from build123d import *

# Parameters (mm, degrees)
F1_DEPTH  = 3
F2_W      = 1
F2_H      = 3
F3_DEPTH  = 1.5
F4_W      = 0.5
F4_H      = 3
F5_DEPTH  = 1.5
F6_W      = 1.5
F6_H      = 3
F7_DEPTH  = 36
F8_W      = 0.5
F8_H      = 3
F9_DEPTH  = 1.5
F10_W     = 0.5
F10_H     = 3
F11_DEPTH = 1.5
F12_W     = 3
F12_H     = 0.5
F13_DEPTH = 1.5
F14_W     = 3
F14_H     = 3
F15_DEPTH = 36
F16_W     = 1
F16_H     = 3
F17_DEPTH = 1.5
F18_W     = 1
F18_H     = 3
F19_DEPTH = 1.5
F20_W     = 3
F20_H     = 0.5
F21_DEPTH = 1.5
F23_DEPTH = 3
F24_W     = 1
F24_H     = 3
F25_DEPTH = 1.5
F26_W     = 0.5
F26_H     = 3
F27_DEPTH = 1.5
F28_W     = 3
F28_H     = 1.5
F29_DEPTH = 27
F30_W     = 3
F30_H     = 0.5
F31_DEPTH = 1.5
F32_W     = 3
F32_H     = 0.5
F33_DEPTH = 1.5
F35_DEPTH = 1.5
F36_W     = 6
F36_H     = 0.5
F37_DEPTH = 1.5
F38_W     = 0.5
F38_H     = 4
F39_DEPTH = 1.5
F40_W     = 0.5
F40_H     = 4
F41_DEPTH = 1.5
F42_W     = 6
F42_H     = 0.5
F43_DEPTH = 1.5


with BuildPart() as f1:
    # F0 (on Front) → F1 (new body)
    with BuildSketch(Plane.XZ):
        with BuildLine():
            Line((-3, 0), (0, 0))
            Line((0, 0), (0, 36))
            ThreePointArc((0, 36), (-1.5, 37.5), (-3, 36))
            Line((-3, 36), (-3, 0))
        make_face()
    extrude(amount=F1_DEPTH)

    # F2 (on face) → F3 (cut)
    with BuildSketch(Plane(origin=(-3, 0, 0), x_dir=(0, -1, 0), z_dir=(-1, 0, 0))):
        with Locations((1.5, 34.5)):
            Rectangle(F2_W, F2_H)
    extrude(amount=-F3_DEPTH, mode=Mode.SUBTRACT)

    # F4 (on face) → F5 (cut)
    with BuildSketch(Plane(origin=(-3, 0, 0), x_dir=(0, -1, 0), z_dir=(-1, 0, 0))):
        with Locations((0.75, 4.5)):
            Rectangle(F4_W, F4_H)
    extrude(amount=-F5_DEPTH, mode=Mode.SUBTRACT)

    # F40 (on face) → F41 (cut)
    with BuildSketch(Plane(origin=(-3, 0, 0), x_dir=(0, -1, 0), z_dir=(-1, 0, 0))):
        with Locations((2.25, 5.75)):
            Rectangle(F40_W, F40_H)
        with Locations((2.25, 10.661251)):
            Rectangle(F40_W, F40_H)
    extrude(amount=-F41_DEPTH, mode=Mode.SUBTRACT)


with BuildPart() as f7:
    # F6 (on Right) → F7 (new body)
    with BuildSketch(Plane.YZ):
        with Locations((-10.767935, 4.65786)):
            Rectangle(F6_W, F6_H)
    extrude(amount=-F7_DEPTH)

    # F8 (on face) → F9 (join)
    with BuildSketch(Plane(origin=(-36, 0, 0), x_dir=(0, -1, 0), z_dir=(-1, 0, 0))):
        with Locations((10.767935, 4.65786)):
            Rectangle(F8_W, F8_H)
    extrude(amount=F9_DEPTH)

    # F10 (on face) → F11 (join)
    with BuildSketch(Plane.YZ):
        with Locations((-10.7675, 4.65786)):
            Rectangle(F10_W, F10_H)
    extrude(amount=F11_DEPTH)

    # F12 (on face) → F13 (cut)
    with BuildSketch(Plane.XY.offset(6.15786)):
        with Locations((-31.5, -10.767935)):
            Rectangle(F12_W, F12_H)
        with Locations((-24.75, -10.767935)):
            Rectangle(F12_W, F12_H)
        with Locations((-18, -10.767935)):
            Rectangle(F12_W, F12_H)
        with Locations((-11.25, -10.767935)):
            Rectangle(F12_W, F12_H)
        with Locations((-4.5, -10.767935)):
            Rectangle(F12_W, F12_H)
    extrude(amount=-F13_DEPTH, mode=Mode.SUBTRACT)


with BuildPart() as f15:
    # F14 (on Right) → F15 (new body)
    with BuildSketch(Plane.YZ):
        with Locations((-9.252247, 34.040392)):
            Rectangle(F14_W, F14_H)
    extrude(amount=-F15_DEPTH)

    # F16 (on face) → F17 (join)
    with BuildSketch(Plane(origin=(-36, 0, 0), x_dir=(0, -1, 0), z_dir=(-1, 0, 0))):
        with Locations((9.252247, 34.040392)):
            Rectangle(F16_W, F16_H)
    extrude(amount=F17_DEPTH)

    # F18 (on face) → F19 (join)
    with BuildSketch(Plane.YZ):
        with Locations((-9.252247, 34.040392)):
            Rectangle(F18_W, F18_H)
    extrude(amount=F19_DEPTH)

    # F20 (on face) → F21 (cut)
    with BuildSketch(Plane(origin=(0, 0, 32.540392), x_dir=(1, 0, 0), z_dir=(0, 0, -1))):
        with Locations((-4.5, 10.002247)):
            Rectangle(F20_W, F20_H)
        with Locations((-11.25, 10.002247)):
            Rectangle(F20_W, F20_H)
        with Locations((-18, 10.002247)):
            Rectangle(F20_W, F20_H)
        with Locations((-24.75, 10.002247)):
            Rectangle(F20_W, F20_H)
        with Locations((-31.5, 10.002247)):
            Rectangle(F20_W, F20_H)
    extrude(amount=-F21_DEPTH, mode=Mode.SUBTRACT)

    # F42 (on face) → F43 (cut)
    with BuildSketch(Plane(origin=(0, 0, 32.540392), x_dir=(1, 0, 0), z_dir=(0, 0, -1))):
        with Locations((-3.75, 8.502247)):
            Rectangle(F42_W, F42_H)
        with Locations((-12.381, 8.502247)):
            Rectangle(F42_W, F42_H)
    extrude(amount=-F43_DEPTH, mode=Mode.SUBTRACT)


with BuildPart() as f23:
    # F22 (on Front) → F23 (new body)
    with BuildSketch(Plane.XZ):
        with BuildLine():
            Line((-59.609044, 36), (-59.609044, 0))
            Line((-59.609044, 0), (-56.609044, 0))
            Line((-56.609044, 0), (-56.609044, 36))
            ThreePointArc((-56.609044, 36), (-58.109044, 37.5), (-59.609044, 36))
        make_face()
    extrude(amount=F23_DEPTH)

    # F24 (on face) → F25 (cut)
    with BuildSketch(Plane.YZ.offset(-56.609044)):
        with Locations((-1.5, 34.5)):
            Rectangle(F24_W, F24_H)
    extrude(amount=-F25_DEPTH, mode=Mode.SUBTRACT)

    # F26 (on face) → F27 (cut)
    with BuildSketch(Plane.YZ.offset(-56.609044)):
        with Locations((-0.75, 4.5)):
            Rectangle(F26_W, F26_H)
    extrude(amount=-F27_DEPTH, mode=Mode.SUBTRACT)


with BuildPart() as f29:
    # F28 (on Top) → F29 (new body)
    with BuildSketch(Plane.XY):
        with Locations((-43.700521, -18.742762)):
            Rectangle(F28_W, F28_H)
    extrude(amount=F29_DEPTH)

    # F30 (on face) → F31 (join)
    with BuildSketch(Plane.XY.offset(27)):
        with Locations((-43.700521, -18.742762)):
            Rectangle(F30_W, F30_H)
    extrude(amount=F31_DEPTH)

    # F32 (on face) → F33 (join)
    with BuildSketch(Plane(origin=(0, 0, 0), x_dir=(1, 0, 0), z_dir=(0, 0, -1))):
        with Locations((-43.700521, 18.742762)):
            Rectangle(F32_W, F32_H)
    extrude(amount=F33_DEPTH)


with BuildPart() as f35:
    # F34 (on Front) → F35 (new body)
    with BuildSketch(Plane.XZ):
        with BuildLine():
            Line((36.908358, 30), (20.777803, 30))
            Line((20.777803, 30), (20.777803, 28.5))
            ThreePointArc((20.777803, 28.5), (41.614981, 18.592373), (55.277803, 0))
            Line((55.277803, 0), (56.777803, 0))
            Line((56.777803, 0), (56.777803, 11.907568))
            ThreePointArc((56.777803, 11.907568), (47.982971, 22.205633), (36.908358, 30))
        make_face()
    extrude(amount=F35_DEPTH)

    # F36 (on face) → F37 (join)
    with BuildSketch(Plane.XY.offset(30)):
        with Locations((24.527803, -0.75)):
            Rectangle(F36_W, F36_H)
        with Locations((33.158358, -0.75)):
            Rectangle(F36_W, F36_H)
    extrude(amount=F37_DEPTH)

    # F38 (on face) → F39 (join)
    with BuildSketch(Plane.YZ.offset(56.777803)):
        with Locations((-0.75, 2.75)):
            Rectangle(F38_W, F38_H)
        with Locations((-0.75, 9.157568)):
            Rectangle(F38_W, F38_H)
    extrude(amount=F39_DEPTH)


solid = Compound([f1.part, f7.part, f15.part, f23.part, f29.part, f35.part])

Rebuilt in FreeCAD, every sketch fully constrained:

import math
import FreeCAD as App
import Part
import Sketcher
from FreeCAD import Vector


def add_polygon(sketch, points):
    """Adds a closed chain of lines whose ends are joined by coincident constraints."""
    first, n = sketch.GeometryCount, len(points)
    for a, b in zip(points, points[1:] + points[:1]):
        sketch.addGeometry(Part.LineSegment(App.Vector(*a, 0), App.Vector(*b, 0)), False)
    for i in range(n):
        sketch.addConstraint(Sketcher.Constraint("Coincident", first + i, 2, first + (i + 1) % n, 1))

doc = App.newDocument("Part")
body = doc.addObject("PartDesign::Body", "Body")

sketch1 = body.newObject("Sketcher::SketchObject", "Sketch")
sketch1.AttachmentSupport = (doc.getObject("XZ_Plane"), [""])
sketch1.MapMode = "FlatFace"
sketch1.addGeometry([
    Part.LineSegment(Vector(-3, 0, 0), Vector(0, 0, 0)),
    Part.LineSegment(Vector(0, 0, 0), Vector(0, 36, 0)),
    Part.ArcOfCircle(Part.Circle(Vector(-1.5, 36, 0), Vector(0, 0, 1), 1.5), math.radians(0), math.radians(180)),
    Part.LineSegment(Vector(-3, 36, 0), Vector(-3, 0, 0)),
], False)
sketch1.addConstraint([
    Sketcher.Constraint("Coincident", 0, 2, 1, 1),
    Sketcher.Constraint("Tangent", 1, 2, 2, 1),
    Sketcher.Constraint("Tangent", 2, 2, 3, 1),
    Sketcher.Constraint("Coincident", 3, 2, 0, 1),
    Sketcher.Constraint("Horizontal", 0),
    Sketcher.Constraint("Vertical", 1),
    Sketcher.Constraint("Vertical", 3),
    Sketcher.Constraint("Coincident", 0, 2, -1, 1),
    Sketcher.Constraint("Radius", 2, 1.5),
    Sketcher.Constraint("DistanceY", 1, 1, 1, 2, 36.0),
])
pad1 = body.newObject("PartDesign::Pad", "Pad")
pad1.Profile = sketch1
pad1.Length = 3

sketch2 = body.newObject("Sketcher::SketchObject", "Sketch001")
sketch2.AttachmentSupport = (doc.getObject("YZ_Plane"), [""])
sketch2.MapMode = "FlatFace"
sketch2.AttachmentOffset = App.Placement(Vector(0, 0, -3), App.Rotation())
add_polygon(sketch2, [(-1, 36), (-1, 33), (-2, 33), (-2, 36)])
sketch2.addConstraint([
    Sketcher.Constraint("Vertical", 0),
    Sketcher.Constraint("Horizontal", 1),
    Sketcher.Constraint("Vertical", 2),
    Sketcher.Constraint("Horizontal", 3),
    Sketcher.Constraint("DistanceX", 1, 2, 1, 1, 1.0),
    Sketcher.Constraint("DistanceY", 0, 2, 0, 1, 3.0),
    Sketcher.Constraint("DistanceX", 0, 2, -1, 1, 1.0),
    Sketcher.Constraint("DistanceY", -1, 1, 0, 2, 33.0),
])
pocket1 = body.newObject("PartDesign::Pocket", "Pocket")
pocket1.Profile = sketch2
pocket1.Length = 1.5
pocket1.Reversed = True

sketch3 = body.newObject("Sketcher::SketchObject", "Sketch002")
sketch3.AttachmentSupport = (doc.getObject("YZ_Plane"), [""])
sketch3.MapMode = "FlatFace"
sketch3.AttachmentOffset = App.Placement(Vector(0, 0, -3), App.Rotation())
add_polygon(sketch3, [(-0.5, 6), (-0.5, 3), (-1, 3), (-1, 6)])
sketch3.addConstraint([
    Sketcher.Constraint("Vertical", 0),
    Sketcher.Constraint("Horizontal", 1),
    Sketcher.Constraint("Vertical", 2),
    Sketcher.Constraint("Horizontal", 3),
    Sketcher.Constraint("DistanceY", 0, 2, 0, 1, 3.0),
    Sketcher.Constraint("DistanceX", 1, 2, 1, 1, 0.5),
    Sketcher.Constraint("DistanceY", -1, 1, 0, 2, 3.0),
    Sketcher.Constraint("DistanceX", 1, 2, -1, 1, 1.0),
])
pocket2 = body.newObject("PartDesign::Pocket", "Pocket001")
pocket2.Profile = sketch3
pocket2.Length = 1.5
pocket2.Reversed = True

sketch4 = body.newObject("Sketcher::SketchObject", "Sketch003")
sketch4.AttachmentSupport = (doc.getObject("YZ_Plane"), [""])
sketch4.MapMode = "FlatFace"
sketch4.AttachmentOffset = App.Placement(Vector(0, 0, -3), App.Rotation())
add_polygon(sketch4, [(-2, 7.8), (-2, 3.8), (-2.5, 3.8), (-2.5, 7.8)])
add_polygon(sketch4, [(-2, 12.7), (-2, 8.7), (-2.5, 8.7), (-2.5, 12.7)])
sketch4.addConstraint([
    Sketcher.Constraint("Vertical", 0),
    Sketcher.Constraint("Horizontal", 1),
    Sketcher.Constraint("Vertical", 2),
    Sketcher.Constraint("Horizontal", 3),
    Sketcher.Constraint("Vertical", 4),
    Sketcher.Constraint("Horizontal", 5),
    Sketcher.Constraint("Vertical", 6),
    Sketcher.Constraint("Horizontal", 7),
    Sketcher.Constraint("Vertical", 3, 2, 4, 2),
    Sketcher.Constraint("Vertical", 2, 2, 5, 2),
    Sketcher.Constraint("Equal", 2, 4),
    Sketcher.Constraint("DistanceY", 0, 2, 0, 1, 4.0),
    Sketcher.Constraint("DistanceX", 1, 2, 1, 1, 0.5),
    Sketcher.Constraint("DistanceX", 0, 2, -1, 1, 2.0),
    Sketcher.Constraint("DistanceY", -1, 1, 0, 2, 3.75),
    Sketcher.Constraint("DistanceY", -1, 1, 4, 2, 8.661251),
])
pocket3 = body.newObject("PartDesign::Pocket", "Pocket002")
pocket3.Profile = sketch4
pocket3.Length = 1.5
pocket3.Reversed = True
body2 = doc.addObject("PartDesign::Body", "Body001")

sketch5 = body2.newObject("Sketcher::SketchObject", "Sketch004")
sketch5.AttachmentSupport = (doc.getObject("YZ_Plane001"), [""])
sketch5.MapMode = "FlatFace"
add_polygon(sketch5, [(-11.5, 6.2), (-11.5, 3.2), (-10, 3.2), (-10, 6.2)])
sketch5.addConstraint([
    Sketcher.Constraint("Vertical", 0),
    Sketcher.Constraint("Horizontal", 1),
    Sketcher.Constraint("Vertical", 2),
    Sketcher.Constraint("Horizontal", 3),
    Sketcher.Constraint("DistanceY", 0, 2, 0, 1, 3.0),
    Sketcher.Constraint("DistanceX", 1, 1, 1, 2, 1.5),
    Sketcher.Constraint("DistanceY", -1, 1, 0, 2, 3.15786),
    Sketcher.Constraint("DistanceX", 0, 2, -1, 1, 11.517935),
])
pad2 = body2.newObject("PartDesign::Pad", "Pad001")
pad2.Profile = sketch5
pad2.Length = 36
pad2.Reversed = True

sketch6 = body2.newObject("Sketcher::SketchObject", "Sketch005")
sketch6.AttachmentSupport = (doc.getObject("YZ_Plane001"), [""])
sketch6.MapMode = "FlatFace"
sketch6.AttachmentOffset = App.Placement(Vector(0, 0, -36), App.Rotation())
add_polygon(sketch6, [(-10.5, 6.2), (-10.5, 3.2), (-11, 3.2), (-11, 6.2)])
sketch6.addConstraint([
    Sketcher.Constraint("Vertical", 0),
    Sketcher.Constraint("Horizontal", 1),
    Sketcher.Constraint("Vertical", 2),
    Sketcher.Constraint("Horizontal", 3),
    Sketcher.Constraint("DistanceY", 0, 2, 0, 1, 3.0),
    Sketcher.Constraint("DistanceX", 1, 2, 1, 1, 0.5),
    Sketcher.Constraint("DistanceY", -1, 1, 0, 2, 3.15786),
    Sketcher.Constraint("DistanceX", 0, 2, -1, 1, 10.517935),
])
pad3 = body2.newObject("PartDesign::Pad", "Pad002")
pad3.Profile = sketch6
pad3.Length = 1.5
pad3.Reversed = True

sketch7 = body2.newObject("Sketcher::SketchObject", "Sketch006")
sketch7.AttachmentSupport = (doc.getObject("YZ_Plane001"), [""])
sketch7.MapMode = "FlatFace"
add_polygon(sketch7, [(-11, 6.2), (-11, 3.2), (-10.5, 3.2), (-10.5, 6.2)])
sketch7.addConstraint([
    Sketcher.Constraint("Vertical", 0),
    Sketcher.Constraint("Horizontal", 1),
    Sketcher.Constraint("Vertical", 2),
    Sketcher.Constraint("Horizontal", 3),
    Sketcher.Constraint("DistanceY", 0, 2, 0, 1, 3.0),
    Sketcher.Constraint("DistanceX", 1, 1, 1, 2, 0.5),
    Sketcher.Constraint("DistanceX", 0, 2, -1, 1, 11.0175),
    Sketcher.Constraint("DistanceY", -1, 1, 0, 2, 3.15786),
])
pad4 = body2.newObject("PartDesign::Pad", "Pad003")
pad4.Profile = sketch7
pad4.Length = 1.5

sketch8 = body2.newObject("Sketcher::SketchObject", "Sketch007")
sketch8.AttachmentSupport = (doc.getObject("XY_Plane001"), [""])
sketch8.MapMode = "FlatFace"
sketch8.AttachmentOffset = App.Placement(Vector(0, 0, 6.15786), App.Rotation())
add_polygon(sketch8, [(-33, -10.5), (-33, -11), (-30, -11), (-30, -10.5)])
add_polygon(sketch8, [(-26.2, -10.5), (-26.2, -11), (-23.2, -11), (-23.2, -10.5)])
add_polygon(sketch8, [(-19.5, -10.5), (-19.5, -11), (-16.5, -11), (-16.5, -10.5)])
add_polygon(sketch8, [(-12.8, -10.5), (-12.8, -11), (-9.8, -11), (-9.8, -10.5)])
add_polygon(sketch8, [(-6, -10.5), (-6, -11), (-3, -11), (-3, -10.5)])
sketch8.addConstraint([
    Sketcher.Constraint("Vertical", 0),
    Sketcher.Constraint("Horizontal", 1),
    Sketcher.Constraint("Vertical", 2),
    Sketcher.Constraint("Horizontal", 3),
    Sketcher.Constraint("Vertical", 4),
    Sketcher.Constraint("Horizontal", 5),
    Sketcher.Constraint("Vertical", 6),
    Sketcher.Constraint("Horizontal", 7),
    Sketcher.Constraint("Vertical", 8),
    Sketcher.Constraint("Horizontal", 9),
    Sketcher.Constraint("Vertical", 10),
    Sketcher.Constraint("Horizontal", 11),
    Sketcher.Constraint("Vertical", 12),
    Sketcher.Constraint("Horizontal", 13),
    Sketcher.Constraint("Vertical", 14),
    Sketcher.Constraint("Horizontal", 15),
    Sketcher.Constraint("Vertical", 16),
    Sketcher.Constraint("Horizontal", 17),
    Sketcher.Constraint("Vertical", 18),
    Sketcher.Constraint("Horizontal", 19),
    Sketcher.Constraint("Horizontal", 1, 2, 4, 2),
    Sketcher.Constraint("Horizontal", 3, 2, 6, 2),
    Sketcher.Constraint("Horizontal", 5, 2, 8, 2),
    Sketcher.Constraint("Horizontal", 7, 2, 10, 2),
    Sketcher.Constraint("Horizontal", 9, 2, 12, 2),
    Sketcher.Constraint("Horizontal", 11, 2, 14, 2),
    Sketcher.Constraint("Horizontal", 13, 2, 16, 2),
    Sketcher.Constraint("Horizontal", 15, 2, 18, 2),
    Sketcher.Constraint("Equal", 3, 5),
    Sketcher.Constraint("Equal", 7, 9),
    Sketcher.Constraint("Equal", 11, 13),
    Sketcher.Constraint("Equal", 15, 17),
    Sketcher.Constraint("DistanceX", 1, 1, 1, 2, 3.0),
    Sketcher.Constraint("DistanceY", 0, 2, 0, 1, 0.5),
    Sketcher.Constraint("DistanceX", 0, 2, -1, 1, 33.0),
    Sketcher.Constraint("DistanceX", 16, 2, -1, 1, 6.0),
    Sketcher.Constraint("DistanceX", 8, 2, -1, 1, 19.5),
    Sketcher.Constraint("DistanceX", 5, 2, 12, 2, 10.5),
    Sketcher.Constraint("DistanceX", 4, 2, -1, 1, 26.25),
    Sketcher.Constraint("DistanceY", 0, 2, -1, 1, 11.017935),
])
pocket4 = body2.newObject("PartDesign::Pocket", "Pocket003")
pocket4.Profile = sketch8
pocket4.Length = 1.5
body3 = doc.addObject("PartDesign::Body", "Body002")

sketch9 = body3.newObject("Sketcher::SketchObject", "Sketch008")
sketch9.AttachmentSupport = (doc.getObject("YZ_Plane002"), [""])
sketch9.MapMode = "FlatFace"
add_polygon(sketch9, [(-10.8, 35.5), (-10.8, 32.5), (-7.8, 32.5), (-7.8, 35.5)])
sketch9.addConstraint([
    Sketcher.Constraint("Vertical", 0),
    Sketcher.Constraint("Horizontal", 1),
    Sketcher.Constraint("Vertical", 2),
    Sketcher.Constraint("Horizontal", 3),
    Sketcher.Constraint("Equal", 3, 0),
    Sketcher.Constraint("DistanceX", 1, 1, 1, 2, 3.0),
    Sketcher.Constraint("DistanceY", -1, 1, 0, 2, 32.540392),
    Sketcher.Constraint("DistanceX", 0, 2, -1, 1, 10.752247),
])
pad5 = body3.newObject("PartDesign::Pad", "Pad004")
pad5.Profile = sketch9
pad5.Length = 36
pad5.Reversed = True

sketch10 = body3.newObject("Sketcher::SketchObject", "Sketch009")
sketch10.AttachmentSupport = (doc.getObject("YZ_Plane002"), [""])
sketch10.MapMode = "FlatFace"
sketch10.AttachmentOffset = App.Placement(Vector(0, 0, -36), App.Rotation())
add_polygon(sketch10, [(-8.8, 35.5), (-8.8, 32.5), (-9.8, 32.5), (-9.8, 35.5)])
sketch10.addConstraint([
    Sketcher.Constraint("Vertical", 0),
    Sketcher.Constraint("Horizontal", 1),
    Sketcher.Constraint("Vertical", 2),
    Sketcher.Constraint("Horizontal", 3),
    Sketcher.Constraint("DistanceX", 1, 2, 1, 1, 1.0),
    Sketcher.Constraint("DistanceY", 0, 2, 0, 1, 3.0),
    Sketcher.Constraint("DistanceY", -1, 1, 0, 2, 32.540392),
    Sketcher.Constraint("DistanceX", 0, 2, -1, 1, 8.752247),
])
pad6 = body3.newObject("PartDesign::Pad", "Pad005")
pad6.Profile = sketch10
pad6.Length = 1.5
pad6.Reversed = True

sketch11 = body3.newObject("Sketcher::SketchObject", "Sketch010")
sketch11.AttachmentSupport = (doc.getObject("YZ_Plane002"), [""])
sketch11.MapMode = "FlatFace"
add_polygon(sketch11, [(-9.8, 35.5), (-9.8, 32.5), (-8.8, 32.5), (-8.8, 35.5)])
sketch11.addConstraint([
    Sketcher.Constraint("Vertical", 0),
    Sketcher.Constraint("Horizontal", 1),
    Sketcher.Constraint("Vertical", 2),
    Sketcher.Constraint("Horizontal", 3),
    Sketcher.Constraint("DistanceX", 1, 1, 1, 2, 1.0),
    Sketcher.Constraint("DistanceY", 0, 2, 0, 1, 3.0),
    Sketcher.Constraint("DistanceY", -1, 1, 0, 2, 32.540392),
    Sketcher.Constraint("DistanceX", 0, 2, -1, 1, 9.752247),
])
pad7 = body3.newObject("PartDesign::Pad", "Pad006")
pad7.Profile = sketch11
pad7.Length = 1.5

sketch12 = body3.newObject("Sketcher::SketchObject", "Sketch011")
sketch12.AttachmentSupport = (doc.getObject("XY_Plane002"), [""])
sketch12.MapMode = "FlatFace"
sketch12.AttachmentOffset = App.Placement(Vector(0, 0, 32.540392), App.Rotation())
add_polygon(sketch12, [(-6, -10.3), (-6, -9.8), (-3, -9.8), (-3, -10.3)])
add_polygon(sketch12, [(-12.8, -10.3), (-12.8, -9.8), (-9.8, -9.8), (-9.8, -10.3)])
add_polygon(sketch12, [(-19.5, -10.3), (-19.5, -9.8), (-16.5, -9.8), (-16.5, -10.3)])
add_polygon(sketch12, [(-26.2, -10.3), (-26.2, -9.8), (-23.2, -9.8), (-23.2, -10.3)])
add_polygon(sketch12, [(-33, -10.3), (-33, -9.8), (-30, -9.8), (-30, -10.3)])
sketch12.addConstraint([
    Sketcher.Constraint("Vertical", 0),
    Sketcher.Constraint("Horizontal", 1),
    Sketcher.Constraint("Vertical", 2),
    Sketcher.Constraint("Horizontal", 3),
    Sketcher.Constraint("Vertical", 4),
    Sketcher.Constraint("Horizontal", 5),
    Sketcher.Constraint("Vertical", 6),
    Sketcher.Constraint("Horizontal", 7),
    Sketcher.Constraint("Vertical", 8),
    Sketcher.Constraint("Horizontal", 9),
    Sketcher.Constraint("Vertical", 10),
    Sketcher.Constraint("Horizontal", 11),
    Sketcher.Constraint("Vertical", 12),
    Sketcher.Constraint("Horizontal", 13),
    Sketcher.Constraint("Vertical", 14),
    Sketcher.Constraint("Horizontal", 15),
    Sketcher.Constraint("Vertical", 16),
    Sketcher.Constraint("Horizontal", 17),
    Sketcher.Constraint("Vertical", 18),
    Sketcher.Constraint("Horizontal", 19),
    Sketcher.Constraint("Horizontal", 1, 2, 4, 2),
    Sketcher.Constraint("Horizontal", 3, 2, 6, 2),
    Sketcher.Constraint("Horizontal", 5, 2, 8, 2),
    Sketcher.Constraint("Horizontal", 7, 2, 10, 2),
    Sketcher.Constraint("Horizontal", 9, 2, 12, 2),
    Sketcher.Constraint("Horizontal", 11, 2, 14, 2),
    Sketcher.Constraint("Horizontal", 13, 2, 16, 2),
    Sketcher.Constraint("Horizontal", 15, 2, 18, 2),
    Sketcher.Constraint("Equal", 3, 5),
    Sketcher.Constraint("Equal", 7, 9),
    Sketcher.Constraint("Equal", 11, 13),
    Sketcher.Constraint("Equal", 15, 17),
    Sketcher.Constraint("DistanceX", 1, 1, 1, 2, 3.0),
    Sketcher.Constraint("DistanceY", 0, 1, 0, 2, 0.5),
    Sketcher.Constraint("DistanceX", 0, 2, -1, 1, 6.0),
    Sketcher.Constraint("DistanceX", 16, 2, -1, 1, 33.0),
    Sketcher.Constraint("DistanceX", 8, 2, -1, 1, 19.5),
    Sketcher.Constraint("DistanceX", 12, 2, 4, 2, 13.5),
    Sketcher.Constraint("DistanceX", 4, 2, -1, 1, 12.75),
    Sketcher.Constraint("DistanceY", 0, 2, -1, 1, 9.752247),
])
pocket5 = body3.newObject("PartDesign::Pocket", "Pocket004")
pocket5.Profile = sketch12
pocket5.Length = 1.5
pocket5.Reversed = True

sketch13 = body3.newObject("Sketcher::SketchObject", "Sketch012")
sketch13.AttachmentSupport = (doc.getObject("XY_Plane002"), [""])
sketch13.MapMode = "FlatFace"
sketch13.AttachmentOffset = App.Placement(Vector(0, 0, 32.540392), App.Rotation())
add_polygon(sketch13, [(-6.8, -8.8), (-6.8, -8.3), (-0.8, -8.3), (-0.8, -8.8)])
add_polygon(sketch13, [(-15.4, -8.8), (-15.4, -8.3), (-9.4, -8.3), (-9.4, -8.8)])
sketch13.addConstraint([
    Sketcher.Constraint("Vertical", 0),
    Sketcher.Constraint("Horizontal", 1),
    Sketcher.Constraint("Vertical", 2),
    Sketcher.Constraint("Horizontal", 3),
    Sketcher.Constraint("Vertical", 4),
    Sketcher.Constraint("Horizontal", 5),
    Sketcher.Constraint("Vertical", 6),
    Sketcher.Constraint("Horizontal", 7),
    Sketcher.Constraint("Horizontal", 1, 2, 4, 2),
    Sketcher.Constraint("Horizontal", 3, 2, 6, 2),
    Sketcher.Constraint("Equal", 3, 5),
    Sketcher.Constraint("DistanceX", 1, 1, 1, 2, 6.0),
    Sketcher.Constraint("DistanceY", 0, 1, 0, 2, 0.5),
    Sketcher.Constraint("DistanceX", 0, 2, -1, 1, 6.75),
    Sketcher.Constraint("DistanceX", 4, 2, -1, 1, 15.381),
    Sketcher.Constraint("DistanceY", 0, 2, -1, 1, 8.252247),
])
pocket6 = body3.newObject("PartDesign::Pocket", "Pocket005")
pocket6.Profile = sketch13
pocket6.Length = 1.5
pocket6.Reversed = True
body4 = doc.addObject("PartDesign::Body", "Body003")

sketch14 = body4.newObject("Sketcher::SketchObject", "Sketch013")
sketch14.AttachmentSupport = (doc.getObject("XZ_Plane003"), [""])
sketch14.MapMode = "FlatFace"
sketch14.addGeometry([
    Part.LineSegment(Vector(-59.6, 36, 0), Vector(-59.6, 0, 0)),
    Part.LineSegment(Vector(-59.6, 0, 0), Vector(-56.6, 0, 0)),
    Part.LineSegment(Vector(-56.6, 0, 0), Vector(-56.6, 36, 0)),
    Part.ArcOfCircle(Part.Circle(Vector(-58.1, 36, 0), Vector(0, 0, 1), 1.5), math.radians(0), math.radians(180)),
], False)
sketch14.addConstraint([
    Sketcher.Constraint("Coincident", 0, 2, 1, 1),
    Sketcher.Constraint("Coincident", 1, 2, 2, 1),
    Sketcher.Constraint("Tangent", 2, 2, 3, 1),
    Sketcher.Constraint("Tangent", 3, 2, 0, 1),
    Sketcher.Constraint("Vertical", 0),
    Sketcher.Constraint("Horizontal", 1),
    Sketcher.Constraint("Vertical", 2),
    Sketcher.Constraint("PointOnObject", 0, 2, -1),
    Sketcher.Constraint("Radius", 3, 1.5),
    Sketcher.Constraint("DistanceY", 0, 2, 0, 1, 36.0),
    Sketcher.Constraint("DistanceX", 3, 3, -1, 1, 58.109044),
])
pad8 = body4.newObject("PartDesign::Pad", "Pad007")
pad8.Profile = sketch14
pad8.Length = 3

sketch15 = body4.newObject("Sketcher::SketchObject", "Sketch014")
sketch15.AttachmentSupport = (doc.getObject("YZ_Plane003"), [""])
sketch15.MapMode = "FlatFace"
sketch15.AttachmentOffset = App.Placement(Vector(0, 0, -56.609044), App.Rotation())
add_polygon(sketch15, [(-2, 36), (-2, 33), (-1, 33), (-1, 36)])
sketch15.addConstraint([
    Sketcher.Constraint("Vertical", 0),
    Sketcher.Constraint("Horizontal", 1),
    Sketcher.Constraint("Vertical", 2),
    Sketcher.Constraint("Horizontal", 3),
    Sketcher.Constraint("DistanceX", 1, 1, 1, 2, 1.0),
    Sketcher.Constraint("DistanceY", 0, 2, 0, 1, 3.0),
    Sketcher.Constraint("DistanceX", 0, 2, -1, 1, 2.0),
    Sketcher.Constraint("DistanceY", -1, 1, 0, 2, 33.0),
])
pocket7 = body4.newObject("PartDesign::Pocket", "Pocket006")
pocket7.Profile = sketch15
pocket7.Length = 1.5

sketch16 = body4.newObject("Sketcher::SketchObject", "Sketch015")
sketch16.AttachmentSupport = (doc.getObject("YZ_Plane003"), [""])
sketch16.MapMode = "FlatFace"
sketch16.AttachmentOffset = App.Placement(Vector(0, 0, -56.609044), App.Rotation())
add_polygon(sketch16, [(-1, 6), (-1, 3), (-0.5, 3), (-0.5, 6)])
sketch16.addConstraint([
    Sketcher.Constraint("Vertical", 0),
    Sketcher.Constraint("Horizontal", 1),
    Sketcher.Constraint("Vertical", 2),
    Sketcher.Constraint("Horizontal", 3),
    Sketcher.Constraint("DistanceY", 0, 2, 0, 1, 3.0),
    Sketcher.Constraint("DistanceX", 1, 1, 1, 2, 0.5),
    Sketcher.Constraint("DistanceX", 0, 2, -1, 1, 1.0),
    Sketcher.Constraint("DistanceY", -1, 1, 0, 2, 3.0),
])
pocket8 = body4.newObject("PartDesign::Pocket", "Pocket007")
pocket8.Profile = sketch16
pocket8.Length = 1.5
body5 = doc.addObject("PartDesign::Body", "Body004")

sketch17 = body5.newObject("Sketcher::SketchObject", "Sketch016")
sketch17.AttachmentSupport = (doc.getObject("XY_Plane004"), [""])
sketch17.MapMode = "FlatFace"
add_polygon(sketch17, [(-45.2, -18), (-45.2, -19.5), (-42.2, -19.5), (-42.2, -18)])
sketch17.addConstraint([
    Sketcher.Constraint("Vertical", 0),
    Sketcher.Constraint("Horizontal", 1),
    Sketcher.Constraint("Vertical", 2),
    Sketcher.Constraint("Horizontal", 3),
    Sketcher.Constraint("DistanceX", 1, 1, 1, 2, 3.0),
    Sketcher.Constraint("DistanceY", 0, 2, 0, 1, 1.5),
    Sketcher.Constraint("DistanceX", 0, 2, -1, 1, 45.200521),
    Sketcher.Constraint("DistanceY", 0, 2, -1, 1, 19.492762),
])
pad9 = body5.newObject("PartDesign::Pad", "Pad008")
pad9.Profile = sketch17
pad9.Length = 27

sketch18 = body5.newObject("Sketcher::SketchObject", "Sketch017")
sketch18.AttachmentSupport = (doc.getObject("XY_Plane004"), [""])
sketch18.MapMode = "FlatFace"
sketch18.AttachmentOffset = App.Placement(Vector(0, 0, 27), App.Rotation())
add_polygon(sketch18, [(-45.2, -18.5), (-45.2, -19), (-42.2, -19), (-42.2, -18.5)])
sketch18.addConstraint([
    Sketcher.Constraint("Vertical", 0),
    Sketcher.Constraint("Horizontal", 1),
    Sketcher.Constraint("Vertical", 2),
    Sketcher.Constraint("Horizontal", 3),
    Sketcher.Constraint("DistanceX", 1, 1, 1, 2, 3.0),
    Sketcher.Constraint("DistanceY", 0, 2, 0, 1, 0.5),
    Sketcher.Constraint("DistanceX", 0, 2, -1, 1, 45.200521),
    Sketcher.Constraint("DistanceY", 0, 2, -1, 1, 18.992762),
])
pad10 = body5.newObject("PartDesign::Pad", "Pad009")
pad10.Profile = sketch18
pad10.Length = 1.5

sketch19 = body5.newObject("Sketcher::SketchObject", "Sketch018")
sketch19.AttachmentSupport = (doc.getObject("XY_Plane004"), [""])
sketch19.MapMode = "FlatFace"
add_polygon(sketch19, [(-45.2, -19), (-45.2, -18.5), (-42.2, -18.5), (-42.2, -19)])
sketch19.addConstraint([
    Sketcher.Constraint("Vertical", 0),
    Sketcher.Constraint("Horizontal", 1),
    Sketcher.Constraint("Vertical", 2),
    Sketcher.Constraint("Horizontal", 3),
    Sketcher.Constraint("DistanceX", 1, 1, 1, 2, 3.0),
    Sketcher.Constraint("DistanceY", 0, 1, 0, 2, 0.5),
    Sketcher.Constraint("DistanceX", 0, 2, -1, 1, 45.200521),
    Sketcher.Constraint("DistanceY", 0, 2, -1, 1, 18.492762),
])
pad11 = body5.newObject("PartDesign::Pad", "Pad010")
pad11.Profile = sketch19
pad11.Length = 1.5
pad11.Reversed = True
body6 = doc.addObject("PartDesign::Body", "Body005")

sketch20 = body6.newObject("Sketcher::SketchObject", "Sketch019")
sketch20.AttachmentSupport = (doc.getObject("XZ_Plane005"), [""])
sketch20.MapMode = "FlatFace"
sketch20.addGeometry([
    Part.LineSegment(Vector(36.908358, 30, 0), Vector(20.777803, 30, 0)),
    Part.LineSegment(Vector(20.777803, 30, 0), Vector(20.777803, 28.5, 0)),
    Part.ArcOfCircle(Part.Circle(Vector(11.517456, -17.841472, 0), Vector(0, 0, 1), 47.257656), math.radians(22.181148), math.radians(78.699516)),
    Part.LineSegment(Vector(55.277803, 0, 0), Vector(56.777803, 0, 0)),
    Part.LineSegment(Vector(56.777803, 0, 0), Vector(56.777803, 11.907568, 0)),
    Part.ArcOfCircle(Part.Circle(Vector(11.517463, -17.841465, 0), Vector(0, 0, 1), 54.161825), math.radians(33.316399), math.radians(62.043772)),
], False)
sketch20.addConstraint([
    Sketcher.Constraint("Coincident", 0, 2, 1, 1),
    Sketcher.Constraint("Coincident", 1, 2, 2, 2),
    Sketcher.Constraint("Coincident", 2, 1, 3, 1),
    Sketcher.Constraint("Coincident", 3, 2, 4, 1),
    Sketcher.Constraint("Coincident", 4, 2, 5, 1),
    Sketcher.Constraint("Coincident", 5, 2, 0, 1),
    Sketcher.Constraint("Horizontal", 0),
    Sketcher.Constraint("Vertical", 1),
    Sketcher.Constraint("Horizontal", 3),
    Sketcher.Constraint("Vertical", 4),
    Sketcher.Constraint("Coincident", 5, 3, 2, 3),
    Sketcher.Constraint("PointOnObject", 2, 1, -1),
    Sketcher.Constraint("Equal", 3, 1),
    Sketcher.Constraint("DistanceX", 3, 1, 3, 2, 1.5),
    Sketcher.Constraint("DistanceY", -1, 1, 0, 2, 30.0),
    Sketcher.Constraint("DistanceX", 1, 2, 3, 2, 36.0),
    Sketcher.Constraint("Radius", 2, 47.257656),
    Sketcher.Constraint("Radius", 5, 54.161825),
    Sketcher.Constraint("DistanceX", -1, 1, 5, 2, 36.908358),
])
pad12 = body6.newObject("PartDesign::Pad", "Pad011")
pad12.Profile = sketch20
pad12.Length = 1.5

sketch21 = body6.newObject("Sketcher::SketchObject", "Sketch020")
sketch21.AttachmentSupport = (doc.getObject("XY_Plane005"), [""])
sketch21.MapMode = "FlatFace"
sketch21.AttachmentOffset = App.Placement(Vector(0, 0, 30), App.Rotation())
add_polygon(sketch21, [(21.5, -0.5), (21.5, -1), (27.5, -1), (27.5, -0.5)])
add_polygon(sketch21, [(30.2, -0.5), (30.2, -1), (36.2, -1), (36.2, -0.5)])
sketch21.addConstraint([
    Sketcher.Constraint("Vertical", 0),
    Sketcher.Constraint("Horizontal", 1),
    Sketcher.Constraint("Vertical", 2),
    Sketcher.Constraint("Horizontal", 3),
    Sketcher.Constraint("Vertical", 4),
    Sketcher.Constraint("Horizontal", 5),
    Sketcher.Constraint("Vertical", 6),
    Sketcher.Constraint("Horizontal", 7),
    Sketcher.Constraint("Horizontal", 1, 2, 4, 2),
    Sketcher.Constraint("Horizontal", 3, 2, 6, 2),
    Sketcher.Constraint("Equal", 3, 5),
    Sketcher.Constraint("DistanceX", 1, 1, 1, 2, 6.0),
    Sketcher.Constraint("DistanceY", 0, 2, 0, 1, 0.5),
    Sketcher.Constraint("DistanceY", 0, 2, -1, 1, 1.0),
    Sketcher.Constraint("DistanceX", -1, 1, 4, 2, 30.158358),
    Sketcher.Constraint("DistanceX", -1, 1, 0, 2, 21.527803),
])
pad13 = body6.newObject("PartDesign::Pad", "Pad012")
pad13.Profile = sketch21
pad13.Length = 1.5

sketch22 = body6.newObject("Sketcher::SketchObject", "Sketch021")
sketch22.AttachmentSupport = (doc.getObject("YZ_Plane005"), [""])
sketch22.MapMode = "FlatFace"
sketch22.AttachmentOffset = App.Placement(Vector(0, 0, 56.777803), App.Rotation())
add_polygon(sketch22, [(-1, 4.8), (-1, 0.8), (-0.5, 0.8), (-0.5, 4.8)])
add_polygon(sketch22, [(-1, 11.2), (-1, 7.2), (-0.5, 7.2), (-0.5, 11.2)])
sketch22.addConstraint([
    Sketcher.Constraint("Vertical", 0),
    Sketcher.Constraint("Horizontal", 1),
    Sketcher.Constraint("Vertical", 2),
    Sketcher.Constraint("Horizontal", 3),
    Sketcher.Constraint("Vertical", 4),
    Sketcher.Constraint("Horizontal", 5),
    Sketcher.Constraint("Vertical", 6),
    Sketcher.Constraint("Horizontal", 7),
    Sketcher.Constraint("Vertical", 3, 2, 4, 2),
    Sketcher.Constraint("Vertical", 2, 2, 5, 2),
    Sketcher.Constraint("Equal", 2, 4),
    Sketcher.Constraint("DistanceY", 0, 2, 0, 1, 4.0),
    Sketcher.Constraint("DistanceX", 1, 1, 1, 2, 0.5),
    Sketcher.Constraint("DistanceX", 0, 2, -1, 1, 1.0),
    Sketcher.Constraint("DistanceY", -1, 1, 0, 2, 0.75),
    Sketcher.Constraint("DistanceY", -1, 1, 4, 2, 7.157568),
])
pad14 = body6.newObject("PartDesign::Pad", "Pad013")
pad14.Profile = sketch22
pad14.Length = 1.5

doc.recompute()
